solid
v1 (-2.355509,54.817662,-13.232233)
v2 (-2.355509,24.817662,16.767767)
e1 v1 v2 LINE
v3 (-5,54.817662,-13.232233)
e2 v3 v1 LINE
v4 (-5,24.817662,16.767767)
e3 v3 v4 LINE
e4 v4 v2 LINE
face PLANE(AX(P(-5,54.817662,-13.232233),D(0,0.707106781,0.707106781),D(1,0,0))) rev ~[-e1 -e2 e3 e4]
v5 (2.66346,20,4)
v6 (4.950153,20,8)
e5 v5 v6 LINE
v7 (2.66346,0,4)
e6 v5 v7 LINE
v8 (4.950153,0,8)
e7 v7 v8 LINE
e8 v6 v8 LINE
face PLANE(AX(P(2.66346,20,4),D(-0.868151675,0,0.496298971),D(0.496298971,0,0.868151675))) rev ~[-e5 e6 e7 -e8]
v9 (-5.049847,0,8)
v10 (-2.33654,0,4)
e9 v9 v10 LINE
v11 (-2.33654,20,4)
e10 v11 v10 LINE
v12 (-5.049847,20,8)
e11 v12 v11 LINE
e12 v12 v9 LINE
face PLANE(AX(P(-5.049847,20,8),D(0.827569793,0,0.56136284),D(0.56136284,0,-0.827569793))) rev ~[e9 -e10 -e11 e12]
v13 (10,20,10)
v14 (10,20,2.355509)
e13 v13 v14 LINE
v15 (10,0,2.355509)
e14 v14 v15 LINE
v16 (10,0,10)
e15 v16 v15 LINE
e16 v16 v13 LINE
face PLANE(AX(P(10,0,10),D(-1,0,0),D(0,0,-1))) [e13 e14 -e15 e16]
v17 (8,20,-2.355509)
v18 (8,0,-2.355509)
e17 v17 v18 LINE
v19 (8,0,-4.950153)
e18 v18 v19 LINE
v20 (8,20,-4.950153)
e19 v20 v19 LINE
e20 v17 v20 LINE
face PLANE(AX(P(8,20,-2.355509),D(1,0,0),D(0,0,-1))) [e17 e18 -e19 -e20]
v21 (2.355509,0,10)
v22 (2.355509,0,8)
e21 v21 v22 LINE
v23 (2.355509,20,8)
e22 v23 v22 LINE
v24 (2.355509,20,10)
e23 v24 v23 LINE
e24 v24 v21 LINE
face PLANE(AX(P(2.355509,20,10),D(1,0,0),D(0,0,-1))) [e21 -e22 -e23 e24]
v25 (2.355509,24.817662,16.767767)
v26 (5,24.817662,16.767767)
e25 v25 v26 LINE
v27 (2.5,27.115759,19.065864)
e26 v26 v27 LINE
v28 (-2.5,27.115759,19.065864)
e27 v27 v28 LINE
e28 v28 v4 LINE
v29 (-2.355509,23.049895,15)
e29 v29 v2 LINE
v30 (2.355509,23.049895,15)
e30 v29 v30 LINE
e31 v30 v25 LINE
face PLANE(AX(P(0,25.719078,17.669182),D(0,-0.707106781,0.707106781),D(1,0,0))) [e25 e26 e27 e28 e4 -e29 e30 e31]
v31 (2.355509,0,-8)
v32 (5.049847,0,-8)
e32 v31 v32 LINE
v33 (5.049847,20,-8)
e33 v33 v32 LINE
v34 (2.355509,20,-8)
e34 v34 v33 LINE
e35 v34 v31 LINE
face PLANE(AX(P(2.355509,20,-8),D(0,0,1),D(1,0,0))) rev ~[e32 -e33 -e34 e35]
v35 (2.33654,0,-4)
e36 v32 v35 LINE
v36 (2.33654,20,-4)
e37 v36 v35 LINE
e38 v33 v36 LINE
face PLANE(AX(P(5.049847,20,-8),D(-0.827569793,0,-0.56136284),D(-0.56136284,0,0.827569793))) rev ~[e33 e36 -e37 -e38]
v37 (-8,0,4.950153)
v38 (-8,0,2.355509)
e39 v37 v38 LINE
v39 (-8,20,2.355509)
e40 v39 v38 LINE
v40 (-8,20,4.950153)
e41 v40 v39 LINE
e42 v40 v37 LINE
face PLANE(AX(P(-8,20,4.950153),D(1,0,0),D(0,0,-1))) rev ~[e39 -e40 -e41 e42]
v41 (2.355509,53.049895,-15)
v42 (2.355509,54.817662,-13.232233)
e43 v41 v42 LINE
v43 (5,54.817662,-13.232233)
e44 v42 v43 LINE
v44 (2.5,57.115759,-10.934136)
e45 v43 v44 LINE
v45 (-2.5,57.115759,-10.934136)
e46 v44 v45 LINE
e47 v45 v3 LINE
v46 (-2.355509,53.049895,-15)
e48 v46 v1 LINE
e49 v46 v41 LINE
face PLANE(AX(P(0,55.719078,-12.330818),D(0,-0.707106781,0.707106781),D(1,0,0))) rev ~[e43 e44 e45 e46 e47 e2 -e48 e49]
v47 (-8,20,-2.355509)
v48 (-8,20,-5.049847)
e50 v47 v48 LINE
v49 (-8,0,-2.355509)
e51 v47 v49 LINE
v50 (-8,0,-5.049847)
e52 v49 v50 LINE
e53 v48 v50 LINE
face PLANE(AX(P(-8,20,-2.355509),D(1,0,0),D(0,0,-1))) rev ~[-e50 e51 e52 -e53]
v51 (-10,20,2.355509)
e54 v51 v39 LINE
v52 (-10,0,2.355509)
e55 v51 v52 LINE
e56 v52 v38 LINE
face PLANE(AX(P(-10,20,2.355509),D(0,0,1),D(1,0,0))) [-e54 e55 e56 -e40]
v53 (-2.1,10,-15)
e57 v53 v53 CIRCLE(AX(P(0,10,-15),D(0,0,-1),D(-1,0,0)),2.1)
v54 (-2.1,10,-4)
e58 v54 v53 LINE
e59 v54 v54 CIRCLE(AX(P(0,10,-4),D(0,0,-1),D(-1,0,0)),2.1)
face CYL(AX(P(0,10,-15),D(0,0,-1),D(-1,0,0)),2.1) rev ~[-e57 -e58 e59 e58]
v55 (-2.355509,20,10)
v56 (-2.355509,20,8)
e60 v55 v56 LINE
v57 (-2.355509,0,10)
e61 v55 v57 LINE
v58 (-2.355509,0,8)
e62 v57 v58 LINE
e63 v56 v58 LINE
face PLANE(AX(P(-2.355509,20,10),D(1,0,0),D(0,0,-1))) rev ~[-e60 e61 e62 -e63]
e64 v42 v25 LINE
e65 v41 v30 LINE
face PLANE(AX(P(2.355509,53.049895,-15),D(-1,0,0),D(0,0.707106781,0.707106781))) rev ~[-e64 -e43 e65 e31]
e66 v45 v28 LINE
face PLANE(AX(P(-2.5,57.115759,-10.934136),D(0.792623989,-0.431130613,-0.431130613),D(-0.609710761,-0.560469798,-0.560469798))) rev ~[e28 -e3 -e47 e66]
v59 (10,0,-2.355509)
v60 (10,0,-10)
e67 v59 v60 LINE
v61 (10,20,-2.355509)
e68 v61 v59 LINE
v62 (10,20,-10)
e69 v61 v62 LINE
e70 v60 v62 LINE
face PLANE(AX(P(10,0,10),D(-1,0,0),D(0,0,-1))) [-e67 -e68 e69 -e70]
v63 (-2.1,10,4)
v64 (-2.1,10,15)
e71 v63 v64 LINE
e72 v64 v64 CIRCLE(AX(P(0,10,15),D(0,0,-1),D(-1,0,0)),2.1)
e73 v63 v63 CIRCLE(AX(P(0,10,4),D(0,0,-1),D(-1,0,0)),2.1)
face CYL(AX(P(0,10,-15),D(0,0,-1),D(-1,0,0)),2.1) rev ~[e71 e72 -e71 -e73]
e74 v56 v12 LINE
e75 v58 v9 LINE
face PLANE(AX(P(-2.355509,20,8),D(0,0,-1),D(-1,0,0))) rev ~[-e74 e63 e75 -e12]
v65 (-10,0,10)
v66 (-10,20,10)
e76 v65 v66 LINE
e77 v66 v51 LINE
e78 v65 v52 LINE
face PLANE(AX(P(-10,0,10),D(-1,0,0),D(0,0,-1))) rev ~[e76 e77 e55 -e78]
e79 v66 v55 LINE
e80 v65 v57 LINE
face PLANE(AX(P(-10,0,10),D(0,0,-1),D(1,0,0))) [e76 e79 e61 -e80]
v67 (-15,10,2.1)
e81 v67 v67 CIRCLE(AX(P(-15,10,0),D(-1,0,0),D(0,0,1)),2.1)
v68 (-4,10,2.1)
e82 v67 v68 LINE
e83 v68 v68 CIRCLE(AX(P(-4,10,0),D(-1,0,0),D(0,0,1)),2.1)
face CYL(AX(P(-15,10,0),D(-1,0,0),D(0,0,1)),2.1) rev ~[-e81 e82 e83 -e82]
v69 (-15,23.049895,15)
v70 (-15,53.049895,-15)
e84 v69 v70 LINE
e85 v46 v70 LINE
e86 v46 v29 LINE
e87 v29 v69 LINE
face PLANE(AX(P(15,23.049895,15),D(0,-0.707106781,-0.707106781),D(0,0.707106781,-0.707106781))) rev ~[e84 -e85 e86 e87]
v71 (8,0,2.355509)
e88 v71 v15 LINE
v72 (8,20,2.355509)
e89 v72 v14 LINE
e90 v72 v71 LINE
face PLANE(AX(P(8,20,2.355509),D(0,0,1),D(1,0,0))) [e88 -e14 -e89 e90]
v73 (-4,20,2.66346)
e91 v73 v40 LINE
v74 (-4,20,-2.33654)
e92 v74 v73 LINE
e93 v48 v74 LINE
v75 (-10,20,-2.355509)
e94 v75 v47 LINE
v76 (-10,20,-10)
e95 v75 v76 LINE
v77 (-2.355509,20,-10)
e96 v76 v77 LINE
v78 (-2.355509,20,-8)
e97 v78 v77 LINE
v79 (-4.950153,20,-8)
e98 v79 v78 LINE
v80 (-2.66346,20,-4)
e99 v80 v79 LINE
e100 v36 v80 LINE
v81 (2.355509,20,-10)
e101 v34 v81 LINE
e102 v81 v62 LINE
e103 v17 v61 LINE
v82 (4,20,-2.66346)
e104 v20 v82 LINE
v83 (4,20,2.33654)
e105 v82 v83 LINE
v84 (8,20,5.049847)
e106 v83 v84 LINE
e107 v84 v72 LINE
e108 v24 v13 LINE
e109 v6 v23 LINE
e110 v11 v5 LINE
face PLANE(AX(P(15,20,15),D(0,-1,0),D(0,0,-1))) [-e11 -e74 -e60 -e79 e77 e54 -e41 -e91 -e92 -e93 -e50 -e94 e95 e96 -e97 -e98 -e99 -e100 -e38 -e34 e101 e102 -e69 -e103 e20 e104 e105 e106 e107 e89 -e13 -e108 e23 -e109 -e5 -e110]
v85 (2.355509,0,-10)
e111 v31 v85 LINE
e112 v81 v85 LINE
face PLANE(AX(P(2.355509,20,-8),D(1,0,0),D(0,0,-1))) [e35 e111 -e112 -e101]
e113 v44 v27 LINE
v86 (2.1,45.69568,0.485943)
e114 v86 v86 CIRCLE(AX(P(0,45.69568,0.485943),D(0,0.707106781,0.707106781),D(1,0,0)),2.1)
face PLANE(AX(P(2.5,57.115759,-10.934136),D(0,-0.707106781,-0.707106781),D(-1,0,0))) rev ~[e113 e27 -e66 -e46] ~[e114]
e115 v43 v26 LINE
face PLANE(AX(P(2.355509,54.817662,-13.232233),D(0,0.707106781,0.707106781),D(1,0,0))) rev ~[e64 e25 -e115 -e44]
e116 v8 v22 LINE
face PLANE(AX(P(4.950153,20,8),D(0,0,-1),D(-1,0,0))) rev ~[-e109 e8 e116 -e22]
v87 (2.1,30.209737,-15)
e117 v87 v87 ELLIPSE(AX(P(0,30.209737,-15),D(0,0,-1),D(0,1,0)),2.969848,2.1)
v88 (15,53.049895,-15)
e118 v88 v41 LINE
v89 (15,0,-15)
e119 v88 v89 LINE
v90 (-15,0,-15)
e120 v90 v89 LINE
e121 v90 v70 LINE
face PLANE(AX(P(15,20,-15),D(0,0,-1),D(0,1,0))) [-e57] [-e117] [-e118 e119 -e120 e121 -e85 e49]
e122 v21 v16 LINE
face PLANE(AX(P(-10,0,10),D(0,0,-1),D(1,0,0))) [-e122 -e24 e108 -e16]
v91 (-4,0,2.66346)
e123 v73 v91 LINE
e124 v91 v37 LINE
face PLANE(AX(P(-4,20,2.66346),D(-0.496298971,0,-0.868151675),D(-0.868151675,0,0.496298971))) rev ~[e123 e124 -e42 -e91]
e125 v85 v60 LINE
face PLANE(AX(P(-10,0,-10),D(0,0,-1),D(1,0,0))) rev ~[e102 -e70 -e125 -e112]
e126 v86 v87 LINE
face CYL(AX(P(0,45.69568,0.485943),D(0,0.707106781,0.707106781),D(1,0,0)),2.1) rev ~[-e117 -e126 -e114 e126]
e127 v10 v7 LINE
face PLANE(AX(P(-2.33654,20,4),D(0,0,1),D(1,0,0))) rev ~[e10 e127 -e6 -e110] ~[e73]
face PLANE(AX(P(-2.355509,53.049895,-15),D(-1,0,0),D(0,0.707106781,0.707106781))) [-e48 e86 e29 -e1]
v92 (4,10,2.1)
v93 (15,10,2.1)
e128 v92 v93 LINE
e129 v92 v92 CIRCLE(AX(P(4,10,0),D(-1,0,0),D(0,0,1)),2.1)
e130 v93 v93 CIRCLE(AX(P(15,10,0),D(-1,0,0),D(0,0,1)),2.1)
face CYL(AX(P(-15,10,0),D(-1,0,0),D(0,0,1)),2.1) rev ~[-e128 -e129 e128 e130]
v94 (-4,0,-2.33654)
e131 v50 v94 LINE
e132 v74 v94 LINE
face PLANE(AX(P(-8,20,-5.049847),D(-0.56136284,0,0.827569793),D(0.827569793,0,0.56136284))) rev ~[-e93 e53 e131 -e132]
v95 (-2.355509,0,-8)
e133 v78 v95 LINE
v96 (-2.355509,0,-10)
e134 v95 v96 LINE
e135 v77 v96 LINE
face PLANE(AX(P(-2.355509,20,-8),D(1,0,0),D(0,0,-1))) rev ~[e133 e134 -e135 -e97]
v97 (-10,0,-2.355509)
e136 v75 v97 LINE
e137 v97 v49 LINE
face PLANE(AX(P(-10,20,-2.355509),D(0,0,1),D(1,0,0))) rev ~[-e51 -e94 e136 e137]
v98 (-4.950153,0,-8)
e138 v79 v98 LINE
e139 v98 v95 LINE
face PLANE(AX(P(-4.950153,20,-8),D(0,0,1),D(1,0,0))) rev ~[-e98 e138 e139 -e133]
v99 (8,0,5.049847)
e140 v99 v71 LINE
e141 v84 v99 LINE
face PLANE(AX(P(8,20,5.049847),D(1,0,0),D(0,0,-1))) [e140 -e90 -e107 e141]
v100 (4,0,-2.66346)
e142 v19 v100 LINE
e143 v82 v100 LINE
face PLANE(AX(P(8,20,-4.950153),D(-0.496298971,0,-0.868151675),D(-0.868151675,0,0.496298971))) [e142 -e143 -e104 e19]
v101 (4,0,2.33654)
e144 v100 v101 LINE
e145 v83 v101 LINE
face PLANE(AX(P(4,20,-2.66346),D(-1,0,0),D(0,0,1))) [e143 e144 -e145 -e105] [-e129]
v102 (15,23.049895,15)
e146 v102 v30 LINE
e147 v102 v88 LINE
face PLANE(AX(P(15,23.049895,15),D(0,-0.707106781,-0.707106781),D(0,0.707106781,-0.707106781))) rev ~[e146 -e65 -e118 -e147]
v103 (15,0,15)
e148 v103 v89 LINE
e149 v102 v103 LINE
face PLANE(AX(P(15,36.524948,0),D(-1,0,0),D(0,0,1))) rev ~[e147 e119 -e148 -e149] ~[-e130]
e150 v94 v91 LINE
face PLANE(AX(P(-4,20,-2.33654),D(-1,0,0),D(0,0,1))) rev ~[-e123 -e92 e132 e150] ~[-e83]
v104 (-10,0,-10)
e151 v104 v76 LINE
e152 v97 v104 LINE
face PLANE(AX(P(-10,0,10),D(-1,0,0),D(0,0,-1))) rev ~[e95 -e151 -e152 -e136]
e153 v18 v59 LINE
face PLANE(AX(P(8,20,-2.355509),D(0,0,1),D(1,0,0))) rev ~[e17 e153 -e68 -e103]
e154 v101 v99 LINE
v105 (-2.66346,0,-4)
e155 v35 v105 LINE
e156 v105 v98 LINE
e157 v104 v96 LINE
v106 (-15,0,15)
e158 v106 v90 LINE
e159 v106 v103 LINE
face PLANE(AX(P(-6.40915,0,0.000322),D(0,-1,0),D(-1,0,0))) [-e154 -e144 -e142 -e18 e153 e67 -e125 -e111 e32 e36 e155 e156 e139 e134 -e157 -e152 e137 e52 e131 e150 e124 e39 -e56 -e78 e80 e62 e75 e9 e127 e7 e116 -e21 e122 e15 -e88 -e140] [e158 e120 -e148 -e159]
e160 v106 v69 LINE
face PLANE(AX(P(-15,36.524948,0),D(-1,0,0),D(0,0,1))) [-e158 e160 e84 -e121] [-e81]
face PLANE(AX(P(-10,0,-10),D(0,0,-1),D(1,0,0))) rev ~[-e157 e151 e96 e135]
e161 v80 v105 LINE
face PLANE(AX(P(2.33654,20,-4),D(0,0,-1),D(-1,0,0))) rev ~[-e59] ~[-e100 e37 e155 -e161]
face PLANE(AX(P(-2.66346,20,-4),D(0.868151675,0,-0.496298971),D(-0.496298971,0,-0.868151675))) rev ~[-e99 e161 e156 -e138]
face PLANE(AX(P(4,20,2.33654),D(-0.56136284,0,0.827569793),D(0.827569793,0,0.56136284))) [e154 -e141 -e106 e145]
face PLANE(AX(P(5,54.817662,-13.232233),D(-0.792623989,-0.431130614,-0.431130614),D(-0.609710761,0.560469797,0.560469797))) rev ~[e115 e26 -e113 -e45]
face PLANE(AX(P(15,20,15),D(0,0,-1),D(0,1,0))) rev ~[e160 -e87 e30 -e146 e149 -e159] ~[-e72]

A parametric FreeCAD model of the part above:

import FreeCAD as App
import Part
import Sketcher

V = App.Vector
Q = App.Units.Quantity


def add_polygon(sketch, points):
    """Adds a closed chain of lines whose ends are joined by coincident constraints."""
    first, n = sketch.GeometryCount, len(points)
    for a, b in zip(points, points[1:] + points[:1]):
        sketch.addGeometry(Part.LineSegment(App.Vector(*a, 0), App.Vector(*b, 0)), False)
    for i in range(n):
        sketch.addConstraint(Sketcher.Constraint("Coincident", first + i, 2, first + (i + 1) % n, 1))

doc = App.newDocument("Part")
body = doc.addObject("PartDesign::Body", "Body")

sketch1 = doc.addObject("Sketcher::SketchObject", "Sketch")
body.addObject(sketch1)
sketch1.AttachmentSupport = (doc.XZ_Plane, [""])
sketch1.MapMode = "FlatFace"
add_polygon(sketch1, [(-15, -15), (-15, 15), (15, 15), (15, -15)])
add_polygon(sketch1, [(10, 10), (-10, 10), (-10, -10), (10, -10)])
sketch1.addConstraint([
    Sketcher.Constraint("Vertical", 0),
    Sketcher.Constraint("Horizontal", 1),
    Sketcher.Constraint("Vertical", 2),
    Sketcher.Constraint("Horizontal", 3),
    Sketcher.Constraint("Horizontal", 4),
    Sketcher.Constraint("Vertical", 5),
    Sketcher.Constraint("Horizontal", 6),
    Sketcher.Constraint("Vertical", 7),
    Sketcher.Constraint("Symmetric", 0, 2, 2, 2, -1, 1),
    Sketcher.Constraint("Symmetric", 4, 2, 6, 2, -1, 1),
    Sketcher.Constraint("Equal", 3, 0),
    Sketcher.Constraint("Equal", 6, 5),
    Sketcher.Constraint("DistanceX", 1, 1, 1, 2, Q("30 mm")),
    Sketcher.Constraint("DistanceX", 4, 2, 4, 1, Q("20 mm")),
])
pad1 = doc.addObject("PartDesign::Pad", "Pad")
body.addObject(pad1)
pad1.Profile = sketch1
pad1.Length = 20
pad1.Reversed = True
body2 = doc.addObject("PartDesign::Body", "Body001")
body2.AllowCompound = True

sketch2 = doc.addObject("Sketcher::SketchObject", "Sketch001")
body2.addObject(sketch2)
sketch2.AttachmentSupport = (doc.getObject("XZ_Plane001"), [""])
sketch2.MapMode = "FlatFace"
sketch2.AttachmentOffset = App.Placement(V(0, 0, -20), App.Rotation())
add_polygon(sketch2, [(-2.7, -4), (2.3, -4), (5, -8), (2.4, -8), (2.4, -10), (-2.4, -10), (-2.4, -8), (-5, -8)])
add_polygon(sketch2, [(-4, 2.7), (-4, -2.3), (-8, -5), (-8, -2.4), (-10, -2.4), (-10, 2.4), (-8, 2.4), (-8, 5)])
add_polygon(sketch2, [(2.7, 4), (-2.3, 4), (-5, 8), (-2.4, 8), (-2.4, 10), (2.4, 10), (2.4, 8), (5, 8)])
add_polygon(sketch2, [(4, -2.7), (4, 2.3), (8, 5), (8, 2.4), (10, 2.4), (10, -2.4), (8, -2.4), (8, -5)])
sketch2.addConstraint([
    Sketcher.Constraint("Horizontal", 0),
    Sketcher.Constraint("Horizontal", 2),
    Sketcher.Constraint("Vertical", 3),
    Sketcher.Constraint("Horizontal", 4),
    Sketcher.Constraint("Vertical", 5),
    Sketcher.Constraint("Horizontal", 6),
    Sketcher.Constraint("Vertical", 8),
    Sketcher.Constraint("Vertical", 10),
    Sketcher.Constraint("Horizontal", 11),
    Sketcher.Constraint("Vertical", 12),
    Sketcher.Constraint("Horizontal", 13),
    Sketcher.Constraint("Vertical", 14),
    Sketcher.Constraint("Horizontal", 16),
    Sketcher.Constraint("Horizontal", 18),
    Sketcher.Constraint("Vertical", 19),
    Sketcher.Constraint("Horizontal", 20),
    Sketcher.Constraint("Vertical", 21),
    Sketcher.Constraint("Horizontal", 22),
    Sketcher.Constraint("Vertical", 24),
    Sketcher.Constraint("Vertical", 26),
    Sketcher.Constraint("Horizontal", 27),
    Sketcher.Constraint("Vertical", 28),
    Sketcher.Constraint("Horizontal", 29),
    Sketcher.Constraint("Vertical", 30),
    Sketcher.Constraint("Symmetric", 0, 2, 16, 2, -1, 1),
    Sketcher.Constraint("Symmetric", 1, 2, 17, 2, -1, 1),
    Sketcher.Constraint("Symmetric", 3, 2, 19, 2, -1, 1),
    Sketcher.Constraint("Symmetric", 5, 2, 21, 2, -1, 1),
    Sketcher.Constraint("Symmetric", 8, 2, 24, 2, -1, 1),
    Sketcher.Constraint("Symmetric", 9, 2, 25, 2, -1, 1),
    Sketcher.Constraint("Symmetric", 11, 2, 27, 2, -1, 1),
    Sketcher.Constraint("Symmetric", 13, 2, 29, 2, -1, 1),
    Sketcher.Constraint("Symmetric", 2, 2, 5, 2, -2),
    Sketcher.Constraint("Symmetric", 13, 2, 26, 2, -2),
    Sketcher.Constraint("Perpendicular", 1, 9),
    Sketcher.Constraint("Perpendicular", 7, 15),
    Sketcher.Constraint("Perpendicular", 15, 23),
    Sketcher.Constraint("Perpendicular", 23, 31),
    Sketcher.Constraint("Equal", 0, 16),
    Sketcher.Constraint("Equal", 29, 3),
    Sketcher.Constraint("Equal", 16, 8),
    Sketcher.Constraint("Equal", 18, 10),
    Sketcher.Constraint("Equal", 20, 12),
    Sketcher.Constraint("Equal", 22, 14),
    Sketcher.Constraint("Equal", 8, 24),
    Sketcher.Constraint("DistanceX", 0, 1, 0, 2, Q("5 mm")),
    Sketcher.Constraint("DistanceX", 11, 2, 11, 1, Q("2 mm")),
    Sketcher.Constraint("DistanceY", 0, 2, -1, 1, Q("4 mm")),
    Sketcher.Constraint("DistanceY", 1, 2, -1, 1, Q("8 mm")),
    Sketcher.Constraint("DistanceX", 8, 2, -1, 1, Q("4 mm")),
    Sketcher.Constraint("DistanceX", 2, 2, 2, 1, Q("2.694338 mm")),
    Sketcher.Constraint("Distance", 1, Q("4.833429 mm")),
    Sketcher.Constraint("Distance", 7, Q("4.60749 mm")),
    Sketcher.Constraint("DistanceX", 4, 2, 4, 1, Q("4.711017 mm")),
])
pad2 = doc.addObject("PartDesign::Pad", "Pad001")
body2.addObject(pad2)
pad2.Profile = sketch2
pad2.Length = 20
body3 = doc.addObject("PartDesign::Body", "Body002")

sketch3 = doc.addObject("Sketcher::SketchObject", "Sketch002")
body3.addObject(sketch3)
sketch3.AttachmentSupport = (doc.getObject("YZ_Plane002"), [""])
sketch3.MapMode = "FlatFace"
sketch3.AttachmentOffset = App.Placement(V(0, 0, -15), App.Rotation())
sketch3.addGeometry(Part.Circle(V(10, 0, 0), V(0, 0, 1), 2.1), False)
sketch3.addConstraint([
    Sketcher.Constraint("PointOnObject", 0, 3, -1),
    Sketcher.Constraint("Diameter", 0, Q("4.2 mm")),
    Sketcher.Constraint("DistanceX", -1, 1, 0, 3, Q("10 mm")),
])
pad3 = doc.addObject("PartDesign::Pad", "Pad002")
body3.addObject(pad3)
pad3.Profile = sketch3
pad3.Length = 31
doc.recompute()

body4 = doc.addObject("PartDesign::Body", "Body003")
body4.BaseFeature = body3
boolean = doc.addObject("PartDesign::Boolean", "Boolean")
body.addObject(boolean)
boolean.Type = "Cut"
boolean.addObjects([body4])
doc.recompute()
body2.AllowCompound = True
doc.recompute()

boolean2 = doc.addObject("PartDesign::Boolean", "Boolean001")
body2.addObject(boolean2)
boolean2.Type = "Cut"
boolean2.addObjects([body3])
body5 = doc.addObject("PartDesign::Body", "Body004")

sketch4 = doc.addObject("Sketcher::SketchObject", "Sketch003")
body5.addObject(sketch4)
sketch4.AttachmentSupport = (doc.getObject("XY_Plane004"), [""])
sketch4.MapMode = "FlatFace"
sketch4.AttachmentOffset = App.Placement(V(0, 0, -15), App.Rotation())
sketch4.addGeometry(Part.Circle(V(0, 10, 0), V(0, 0, 1), 2.1), False)
sketch4.addConstraint([
    Sketcher.Constraint("PointOnObject", 0, 3, -2),
    Sketcher.Constraint("Diameter", 0, Q("4.2 mm")),
    Sketcher.Constraint("DistanceY", -1, 1, 0, 3, Q("10 mm")),
])
pad4 = doc.addObject("PartDesign::Pad", "Pad003")
body5.addObject(pad4)
pad4.Profile = sketch4
pad4.Length = 31
doc.recompute()

body6 = doc.addObject("PartDesign::Body", "Body005")
body6.BaseFeature = body5
boolean3 = doc.addObject("PartDesign::Boolean", "Boolean002")
body.addObject(boolean3)
boolean3.Type = "Cut"
boolean3.addObjects([body6])
doc.recompute()
body2.AllowCompound = True
doc.recompute()

boolean4 = doc.addObject("PartDesign::Boolean", "Boolean003")
body2.addObject(boolean4)
boolean4.Type = "Cut"
boolean4.addObjects([body5])
doc.recompute()

boolean5 = doc.addObject("PartDesign::Boolean", "Boolean004")
body.addObject(boolean5)
boolean5.Type = "Fuse"
boolean5.addObjects([body2])

sketch5 = doc.addObject("Sketcher::SketchObject", "Sketch004")
body.addObject(sketch5)
sketch5.AttachmentSupport = (doc.YZ_Plane, [""])
sketch5.MapMode = "FlatFace"
sketch5.AttachmentOffset = App.Placement(V(0, 0, 15), App.Rotation())
add_polygon(sketch5, [(20, -15), (53, -15), (23, 15), (20, 15)])
sketch5.addConstraint([
    Sketcher.Constraint("Horizontal", 0),
    Sketcher.Constraint("Horizontal", 2),
    Sketcher.Constraint("Vertical", 3),
    Sketcher.Constraint("DistanceY", 3, 2, 3, 1, Q("30 mm")),
    Sketcher.Constraint("Angle", 1, Q("135 deg")),
    Sketcher.Constraint("DistanceY", 0, 2, -1, 1, Q("15 mm")),
    Sketcher.Constraint("DistanceX", -1, 1, 2, 2, Q("20 mm")),
    Sketcher.Constraint("DistanceX", 0, 1, 0, 2, Q("33.049895 mm")),
])
pad5 = doc.addObject("PartDesign::Pad", "Pad004")
body.addObject(pad5)
pad5.Profile = sketch5
pad5.Length = 30
pad5.Reversed = True

sketch6 = doc.addObject("Sketcher::SketchObject", "Sketch005")
body.addObject(sketch6)
sketch6.Placement = App.Placement(V(0, 34.024948, -34.024948), App.Rotation(V(1, 0, 0), V(0, 0.707106781, 0.707106781), V(0, -0.707106781, 0.707106781), "ZXY"))
add_polygon(sketch6, [(2.5, 32.7), (-2.5, 32.7), (-5, 29.4), (-2.4, 29.4), (-2.4, 26.9), (2.4, 26.9), (2.4, 29.4), (5, 29.4)])
sketch6.addConstraint([
    Sketcher.Constraint("Horizontal", 0),
    Sketcher.Constraint("Horizontal", 2),
    Sketcher.Constraint("Vertical", 3),
    Sketcher.Constraint("Horizontal", 4),
    Sketcher.Constraint("Vertical", 5),
    Sketcher.Constraint("Horizontal", 6),
    Sketcher.Constraint("Symmetric", 2, 2, 5, 2, -2),
    Sketcher.Constraint("Equal", 2, 6),
    Sketcher.Constraint("Equal", 1, 7),
    Sketcher.Constraint("DistanceX", 0, 2, 0, 1, Q("5 mm")),
    Sketcher.Constraint("DistanceY", 3, 2, 3, 1, Q("2.5 mm")),
    Sketcher.Constraint("DistanceX", 1, 2, -1, 1, Q("5 mm")),
    Sketcher.Constraint("DistanceY", 1, 2, 0, 2, Q("3.25 mm")),
    Sketcher.Constraint("DistanceX", 2, 1, 2, 2, Q("2.644491 mm")),
    Sketcher.Constraint("DistanceY", -1, 1, 0, 2, Q("32.655339 mm")),
])
pad6 = doc.addObject("PartDesign::Pad", "Pad005")
body.addObject(pad6)
pad6.Profile = sketch6
pad6.Length = 42.426407

sketch7 = doc.addObject("Sketcher::SketchObject", "Sketch006")
body.addObject(sketch7)
sketch7.Placement = App.Placement(V(0, 23.090812, 23.090812), App.Rotation(V(1, 0, 0), V(0, 0.707106781, -0.707106781), V(0, 0.707106781, 0.707106781), "ZXY"))
sketch7.addGeometry(Part.Circle(V(0, 32, 0), V(0, 0, 1), 2.1), False)
sketch7.addConstraint([
    Sketcher.Constraint("PointOnObject", 0, 3, -2),
    Sketcher.Constraint("Diameter", 0, Q("4.2 mm")),
    Sketcher.Constraint("DistanceY", -1, 1, 0, 3, Q("31.968111 mm")),
])
pocket1 = doc.addObject("PartDesign::Pocket", "Pocket")
body.addObject(pocket1)
pocket1.Profile = sketch7
pocket1.Type = "ThroughAll"

doc.recompute()
